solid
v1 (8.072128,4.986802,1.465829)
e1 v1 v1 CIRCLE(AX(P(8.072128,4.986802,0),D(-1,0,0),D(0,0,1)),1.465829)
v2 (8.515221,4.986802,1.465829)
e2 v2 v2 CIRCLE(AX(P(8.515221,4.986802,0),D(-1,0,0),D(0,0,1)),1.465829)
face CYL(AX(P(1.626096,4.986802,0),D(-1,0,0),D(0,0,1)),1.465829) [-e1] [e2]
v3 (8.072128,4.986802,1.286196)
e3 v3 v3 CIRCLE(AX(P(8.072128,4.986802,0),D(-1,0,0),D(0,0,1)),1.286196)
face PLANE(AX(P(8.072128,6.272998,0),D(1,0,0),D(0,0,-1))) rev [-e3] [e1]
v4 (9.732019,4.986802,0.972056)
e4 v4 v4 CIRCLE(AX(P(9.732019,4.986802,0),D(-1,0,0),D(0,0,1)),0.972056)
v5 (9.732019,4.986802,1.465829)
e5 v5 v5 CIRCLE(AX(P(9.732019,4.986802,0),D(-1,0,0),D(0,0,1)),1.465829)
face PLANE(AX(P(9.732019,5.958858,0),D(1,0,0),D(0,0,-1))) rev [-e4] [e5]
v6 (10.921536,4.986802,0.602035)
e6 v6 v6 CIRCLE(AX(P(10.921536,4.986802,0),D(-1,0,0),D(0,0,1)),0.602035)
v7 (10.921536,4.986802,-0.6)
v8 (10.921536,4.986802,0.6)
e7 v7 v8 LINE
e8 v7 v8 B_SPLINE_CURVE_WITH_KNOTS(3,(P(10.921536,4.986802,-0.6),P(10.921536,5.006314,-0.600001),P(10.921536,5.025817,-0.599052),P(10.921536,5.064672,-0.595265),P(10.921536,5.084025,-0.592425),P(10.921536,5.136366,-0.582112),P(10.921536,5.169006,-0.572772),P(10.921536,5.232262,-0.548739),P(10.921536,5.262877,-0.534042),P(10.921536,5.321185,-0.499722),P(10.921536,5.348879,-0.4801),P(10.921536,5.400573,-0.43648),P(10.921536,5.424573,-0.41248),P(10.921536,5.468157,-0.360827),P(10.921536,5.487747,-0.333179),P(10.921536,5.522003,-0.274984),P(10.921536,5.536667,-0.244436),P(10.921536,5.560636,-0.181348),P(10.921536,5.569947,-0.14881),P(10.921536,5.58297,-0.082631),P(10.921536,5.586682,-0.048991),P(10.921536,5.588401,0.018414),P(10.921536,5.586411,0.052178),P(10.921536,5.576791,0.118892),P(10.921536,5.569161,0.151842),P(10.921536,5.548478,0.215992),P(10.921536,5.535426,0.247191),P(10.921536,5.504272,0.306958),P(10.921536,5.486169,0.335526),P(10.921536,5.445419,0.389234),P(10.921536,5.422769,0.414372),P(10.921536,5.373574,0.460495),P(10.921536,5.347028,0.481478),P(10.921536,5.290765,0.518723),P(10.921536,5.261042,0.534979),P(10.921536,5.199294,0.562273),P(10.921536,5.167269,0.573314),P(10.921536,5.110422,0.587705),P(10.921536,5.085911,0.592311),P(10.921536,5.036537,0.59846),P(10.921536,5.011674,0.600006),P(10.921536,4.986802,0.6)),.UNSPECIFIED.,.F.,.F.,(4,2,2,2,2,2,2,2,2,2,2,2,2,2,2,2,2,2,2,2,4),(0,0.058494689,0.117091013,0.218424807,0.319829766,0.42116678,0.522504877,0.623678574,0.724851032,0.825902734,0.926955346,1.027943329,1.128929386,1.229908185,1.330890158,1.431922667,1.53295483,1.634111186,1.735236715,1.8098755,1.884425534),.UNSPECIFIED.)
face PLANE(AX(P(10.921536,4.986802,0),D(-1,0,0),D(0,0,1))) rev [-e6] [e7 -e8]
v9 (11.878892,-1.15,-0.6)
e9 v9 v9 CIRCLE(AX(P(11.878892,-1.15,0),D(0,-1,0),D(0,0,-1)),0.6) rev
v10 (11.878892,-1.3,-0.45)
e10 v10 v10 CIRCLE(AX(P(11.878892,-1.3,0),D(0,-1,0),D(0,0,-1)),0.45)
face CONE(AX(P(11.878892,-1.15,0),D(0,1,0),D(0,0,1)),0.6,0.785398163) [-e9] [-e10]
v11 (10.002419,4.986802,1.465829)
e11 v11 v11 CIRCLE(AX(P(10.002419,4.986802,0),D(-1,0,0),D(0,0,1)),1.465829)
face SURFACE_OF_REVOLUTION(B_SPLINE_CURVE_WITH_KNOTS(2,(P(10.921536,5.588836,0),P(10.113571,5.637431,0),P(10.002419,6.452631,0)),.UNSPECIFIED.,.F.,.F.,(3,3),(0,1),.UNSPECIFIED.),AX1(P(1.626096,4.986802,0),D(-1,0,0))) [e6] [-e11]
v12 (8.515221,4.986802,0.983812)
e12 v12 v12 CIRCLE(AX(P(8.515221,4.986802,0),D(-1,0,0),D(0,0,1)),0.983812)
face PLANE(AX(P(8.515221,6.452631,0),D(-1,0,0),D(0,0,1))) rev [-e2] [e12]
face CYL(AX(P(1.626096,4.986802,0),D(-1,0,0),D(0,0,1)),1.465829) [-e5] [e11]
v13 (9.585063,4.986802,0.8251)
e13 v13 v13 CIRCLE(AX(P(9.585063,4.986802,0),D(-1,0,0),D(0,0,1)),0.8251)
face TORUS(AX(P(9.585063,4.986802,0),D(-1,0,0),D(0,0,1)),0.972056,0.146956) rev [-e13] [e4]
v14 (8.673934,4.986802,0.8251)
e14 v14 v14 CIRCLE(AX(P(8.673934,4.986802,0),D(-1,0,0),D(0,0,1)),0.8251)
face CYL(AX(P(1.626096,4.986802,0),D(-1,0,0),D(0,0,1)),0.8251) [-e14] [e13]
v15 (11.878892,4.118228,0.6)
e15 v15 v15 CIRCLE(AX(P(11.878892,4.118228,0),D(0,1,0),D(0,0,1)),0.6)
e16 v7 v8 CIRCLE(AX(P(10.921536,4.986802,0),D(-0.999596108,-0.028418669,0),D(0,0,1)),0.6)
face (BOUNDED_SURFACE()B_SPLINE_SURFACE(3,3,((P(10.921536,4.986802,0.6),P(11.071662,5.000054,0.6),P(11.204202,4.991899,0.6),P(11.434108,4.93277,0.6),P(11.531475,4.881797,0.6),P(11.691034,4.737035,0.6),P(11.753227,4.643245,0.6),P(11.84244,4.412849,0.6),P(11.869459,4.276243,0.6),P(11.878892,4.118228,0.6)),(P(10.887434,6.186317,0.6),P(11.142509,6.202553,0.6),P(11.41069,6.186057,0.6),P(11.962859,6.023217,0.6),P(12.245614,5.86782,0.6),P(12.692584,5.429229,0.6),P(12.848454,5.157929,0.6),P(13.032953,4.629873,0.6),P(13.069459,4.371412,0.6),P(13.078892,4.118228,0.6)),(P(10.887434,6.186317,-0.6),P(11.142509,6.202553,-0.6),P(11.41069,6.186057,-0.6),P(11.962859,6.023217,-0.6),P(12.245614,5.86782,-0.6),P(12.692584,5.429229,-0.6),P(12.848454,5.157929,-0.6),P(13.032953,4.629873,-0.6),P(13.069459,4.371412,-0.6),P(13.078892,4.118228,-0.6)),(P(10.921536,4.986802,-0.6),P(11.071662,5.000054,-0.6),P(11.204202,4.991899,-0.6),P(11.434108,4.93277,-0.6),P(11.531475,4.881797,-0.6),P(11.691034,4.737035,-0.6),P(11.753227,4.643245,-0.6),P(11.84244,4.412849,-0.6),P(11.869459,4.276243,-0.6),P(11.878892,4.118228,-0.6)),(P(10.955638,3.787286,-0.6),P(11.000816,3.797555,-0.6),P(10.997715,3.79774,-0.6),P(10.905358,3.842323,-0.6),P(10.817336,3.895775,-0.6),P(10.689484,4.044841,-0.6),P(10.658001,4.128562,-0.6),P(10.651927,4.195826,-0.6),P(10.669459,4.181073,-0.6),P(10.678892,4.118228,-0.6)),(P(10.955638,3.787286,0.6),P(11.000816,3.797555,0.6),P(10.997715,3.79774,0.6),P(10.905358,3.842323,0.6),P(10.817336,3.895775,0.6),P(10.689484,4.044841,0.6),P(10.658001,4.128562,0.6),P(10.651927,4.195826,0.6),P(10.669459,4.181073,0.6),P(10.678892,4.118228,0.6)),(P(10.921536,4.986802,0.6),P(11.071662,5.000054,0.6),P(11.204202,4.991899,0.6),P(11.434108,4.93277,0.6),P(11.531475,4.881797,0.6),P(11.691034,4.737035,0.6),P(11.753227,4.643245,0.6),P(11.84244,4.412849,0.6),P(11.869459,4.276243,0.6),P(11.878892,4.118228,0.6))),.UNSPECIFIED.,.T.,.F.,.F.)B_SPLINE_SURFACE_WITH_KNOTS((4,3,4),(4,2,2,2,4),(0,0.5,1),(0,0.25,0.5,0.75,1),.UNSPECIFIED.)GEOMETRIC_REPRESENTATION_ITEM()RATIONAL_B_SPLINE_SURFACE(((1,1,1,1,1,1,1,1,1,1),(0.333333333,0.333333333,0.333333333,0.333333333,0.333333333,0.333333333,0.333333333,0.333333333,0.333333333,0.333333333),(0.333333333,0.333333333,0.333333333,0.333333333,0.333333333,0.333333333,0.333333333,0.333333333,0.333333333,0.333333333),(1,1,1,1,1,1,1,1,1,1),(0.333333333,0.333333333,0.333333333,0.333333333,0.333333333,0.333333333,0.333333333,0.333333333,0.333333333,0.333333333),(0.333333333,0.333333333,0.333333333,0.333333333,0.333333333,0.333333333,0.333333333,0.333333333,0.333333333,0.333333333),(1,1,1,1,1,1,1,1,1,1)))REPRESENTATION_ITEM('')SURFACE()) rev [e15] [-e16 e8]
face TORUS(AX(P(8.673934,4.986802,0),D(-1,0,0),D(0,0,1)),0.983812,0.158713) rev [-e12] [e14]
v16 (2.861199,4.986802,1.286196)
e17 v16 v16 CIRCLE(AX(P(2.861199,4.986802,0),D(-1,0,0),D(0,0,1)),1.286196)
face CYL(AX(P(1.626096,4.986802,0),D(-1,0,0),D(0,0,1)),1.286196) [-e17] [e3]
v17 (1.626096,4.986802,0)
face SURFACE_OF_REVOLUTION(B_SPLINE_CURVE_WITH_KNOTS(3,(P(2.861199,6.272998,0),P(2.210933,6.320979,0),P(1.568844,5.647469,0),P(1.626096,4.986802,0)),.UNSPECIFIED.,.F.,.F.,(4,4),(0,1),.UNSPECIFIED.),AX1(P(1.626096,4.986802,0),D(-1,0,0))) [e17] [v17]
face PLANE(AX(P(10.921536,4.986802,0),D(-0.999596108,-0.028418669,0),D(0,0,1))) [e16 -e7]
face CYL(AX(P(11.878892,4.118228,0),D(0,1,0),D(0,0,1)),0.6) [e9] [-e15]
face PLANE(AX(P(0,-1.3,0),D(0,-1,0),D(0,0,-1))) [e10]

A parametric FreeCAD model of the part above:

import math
import FreeCAD as App
import Part
import Sketcher


def edges_at(feature, points):
    """Names of the edges that pass closest to the given points."""
    edges = feature.Shape.Edges
    near = lambda p: min(range(len(edges)), key=lambda i: edges[i].distToShape(Part.Vertex(*p))[0])
    return sorted({f"Edge{near(p) + 1}" for p in points})

doc = App.newDocument("Part")
body = doc.addObject("PartDesign::Body", "Body")

sketch1 = body.newObject("Sketcher::SketchObject", "Sketch")
sketch1.AttachmentSupport = (doc.getObject("XY_Plane"), [""])
sketch1.MapMode = "FlatFace"
sketch1.addGeometry([
    Part.LineSegment(App.Vector(1.626096, 4.986802, 0), App.Vector(10.921536, 4.986802, 0)),
    Part.LineSegment(App.Vector(10.921536, 4.986802, 0), App.Vector(10.921536, 5.588836, 0)),
    Part.BSplineCurve([App.Vector(10.002419, 6.452631, 0), App.Vector(10.113571, 5.637431, 0), App.Vector(10.921536, 5.588836, 0)], [3, 3], [0, 1], False, 2, [1, 1, 1], False),
    Part.LineSegment(App.Vector(10.002419, 6.452631, 0), App.Vector(9.732019, 6.452631, 0)),
    Part.LineSegment(App.Vector(9.732019, 6.452631, 0), App.Vector(9.732019, 5.958858, 0)),
    Part.ArcOfCircle(Part.Circle(App.Vector(9.585063, 5.958858, 0), App.Vector(0, 0, 1), 0.146956), math.radians(-90), math.radians(0)),
    Part.LineSegment(App.Vector(9.585063, 5.811901, 0), App.Vector(8.673934, 5.811901, 0)),
    Part.ArcOfCircle(Part.Circle(App.Vector(8.673934, 5.970614, 0), App.Vector(0, 0, 1), 0.158713), math.radians(180), math.radians(270)),
    Part.LineSegment(App.Vector(8.515221, 5.970614, 0), App.Vector(8.515221, 6.452631, 0)),
    Part.LineSegment(App.Vector(8.515221, 6.452631, 0), App.Vector(8.072128, 6.452631, 0)),
    Part.LineSegment(App.Vector(8.072128, 6.452631, 0), App.Vector(8.072128, 6.272998, 0)),
    Part.LineSegment(App.Vector(8.072128, 6.272998, 0), App.Vector(2.861199, 6.272998, 0)),
    Part.BSplineCurve([App.Vector(1.626096, 4.986802, 0), App.Vector(1.568844, 5.647469, 0), App.Vector(2.210933, 6.320979, 0), App.Vector(2.861199, 6.272998, 0)], [4, 4], [0, 1], False, 3, [1, 1, 1, 1], False),
], False)
sketch1.addGeometry(Part.LineSegment(App.Vector(1.626096, 4.986802, 0), App.Vector(10.921536, 4.986802, 0)), True)
sketch1.addConstraint([
    Sketcher.Constraint("Block", 2),
    Sketcher.Constraint("Block", 12),
    Sketcher.Constraint("Coincident", 0, 2, 1, 1),
    Sketcher.Constraint("Coincident", 1, 2, 2, 2),
    Sketcher.Constraint("Coincident", 2, 1, 3, 1),
    Sketcher.Constraint("Coincident", 3, 2, 4, 1),
    Sketcher.Constraint("Tangent", 4, 2, 5, 2),
    Sketcher.Constraint("Tangent", 5, 1, 6, 1),
    Sketcher.Constraint("Tangent", 6, 2, 7, 2),
    Sketcher.Constraint("Tangent", 7, 1, 8, 1),
    Sketcher.Constraint("Coincident", 8, 2, 9, 1),
    Sketcher.Constraint("Coincident", 9, 2, 10, 1),
    Sketcher.Constraint("Coincident", 10, 2, 11, 1),
    Sketcher.Constraint("Coincident", 11, 2, 12, 2),
    Sketcher.Constraint("Coincident", 12, 1, 0, 1),
    Sketcher.Constraint("Horizontal", 0),
    Sketcher.Constraint("Vertical", 1),
    Sketcher.Constraint("Horizontal", 3),
    Sketcher.Constraint("Vertical", 4),
    Sketcher.Constraint("Horizontal", 6),
    Sketcher.Constraint("Vertical", 8),
    Sketcher.Constraint("Horizontal", 9),
    Sketcher.Constraint("Vertical", 10),
    Sketcher.Constraint("Horizontal", 11),
    Sketcher.Constraint("Horizontal", 13),
    Sketcher.Constraint("Coincident", 13, 2, 0, 2),
    Sketcher.Constraint("Horizontal", 3, 2, 8, 2),
    Sketcher.Constraint("Equal", 0, 13),
    Sketcher.Constraint("DistanceX", 3, 2, 3, 1, 0.2704),
    Sketcher.Constraint("Radius", 5, 0.146956),
    Sketcher.Constraint("Radius", 7, 0.158713),
    Sketcher.Constraint("DistanceX", 6, 2, 6, 1, 0.911129),
    Sketcher.Constraint("DistanceX", 11, 2, 11, 1, 5.210929),
    Sketcher.Constraint("DistanceY", -1, 1, 5, 1, 5.811901),
])
revolution = body.newObject("PartDesign::Revolution", "Revolution")
revolution.Profile = sketch1
revolution.ReferenceAxis = (sketch1, ["Axis0"])
revolution.Angle = 360
body2 = doc.addObject("PartDesign::Body", "Body001")

sketch2 = body2.newObject("Sketcher::SketchObject", "Sketch001")
sketch2.AttachmentSupport = (doc.getObject("XY_Plane001"), [""])
sketch2.MapMode = "FlatFace"
sketch2.addGeometry([
    Part.LineSegment(App.Vector(11.878892, 4.118228, 0), App.Vector(11.878892, -1.3, 0)),
    Part.LineSegment(App.Vector(11.878892, -1.3, 0), App.Vector(12.478892, -1.3, 0)),
    Part.LineSegment(App.Vector(12.478892, -1.3, 0), App.Vector(12.478892, 4.118228, 0)),
    Part.LineSegment(App.Vector(12.478892, 4.118228, 0), App.Vector(11.878892, 4.118228, 0)),
], False)
sketch2.addGeometry(Part.LineSegment(App.Vector(11.878892, 4.118228, 0), App.Vector(11.878892, -1.3, 0)), True)
sketch2.addConstraint([
    Sketcher.Constraint("Coincident", 0, 2, 1, 1),
    Sketcher.Constraint("Coincident", 1, 2, 2, 1),
    Sketcher.Constraint("Coincident", 2, 2, 3, 1),
    Sketcher.Constraint("Coincident", 3, 2, 0, 1),
    Sketcher.Constraint("Vertical", 0),
    Sketcher.Constraint("Horizontal", 1),
    Sketcher.Constraint("Vertical", 2),
    Sketcher.Constraint("Horizontal", 3),
    Sketcher.Constraint("Vertical", 4),
    Sketcher.Constraint("Coincident", 4, 1, 3, 2),
    Sketcher.Constraint("Horizontal", 1, 2, 4, 2),
    Sketcher.Constraint("DistanceX", 1, 1, 1, 2, 0.6),
    Sketcher.Constraint("DistanceY", 0, 2, -1, 1, 1.3),
    Sketcher.Constraint("DistanceY", 0, 2, 0, 1, 5.418228),
    Sketcher.Constraint("DistanceX", -1, 1, 0, 2, 11.878892),
])
revolution2 = body2.newObject("PartDesign::Revolution", "Revolution001")
revolution2.Profile = sketch2
revolution2.ReferenceAxis = (sketch2, ["Axis0"])
revolution2.Angle = 360
body.AllowCompound = True
doc.recompute()

boolean = body.newObject("PartDesign::Boolean", "Boolean")
boolean.Type = "Fuse"
boolean.addObjects([body2])

sketch3 = body.newObject("Sketcher::SketchObject", "Sketch002")
sketch3.AttachmentSupport = (doc.getObject("XZ_Plane"), [""])
sketch3.MapMode = "FlatFace"
sketch3.AttachmentOffset = App.Placement(App.Vector(0, 0, -4.118228), App.Rotation())
sketch3.addGeometry(Part.Circle(App.Vector(11.878892, 0, 0), App.Vector(0, 0, 1), 0.6), False)
sketch3.addConstraint([
    Sketcher.Constraint("PointOnObject", 0, 3, -1),
    Sketcher.Constraint("Diameter", 0, 1.2),
    Sketcher.Constraint("DistanceX", -1, 1, 0, 3, 11.878892),
])

sketch4 = body.newObject("Sketcher::SketchObject", "Sketch003")
sketch4.AttachmentSupport = (doc.getObject("XY_Plane"), [""])
sketch4.MapMode = "FlatFace"
sketch4.addGeometry(Part.BSplineCurve([App.Vector(10.921536, 4.986802, 0), App.Vector(11.822295, 5.066317, 0), App.Vector(11.878892, 4.118228, 0)], [3, 3], [0, 1], False, 2, [1, 1, 1], False), False)
sketch4.addConstraint(Sketcher.Constraint("Block", 0))
doc.recompute()

additivepipe = body.newObject("PartDesign::AdditivePipe", "AdditivePipe")
additivepipe.Profile = sketch3
additivepipe.Spine = (sketch4, ["Edge1"])
doc.recompute()

chamfer = body.newObject("PartDesign::Chamfer", "Chamfer")
chamfer.Base = (additivepipe, edges_at(additivepipe, [(11.879, -1.3, -0.6)]))
chamfer.Size = 0.15

doc.recompute()
